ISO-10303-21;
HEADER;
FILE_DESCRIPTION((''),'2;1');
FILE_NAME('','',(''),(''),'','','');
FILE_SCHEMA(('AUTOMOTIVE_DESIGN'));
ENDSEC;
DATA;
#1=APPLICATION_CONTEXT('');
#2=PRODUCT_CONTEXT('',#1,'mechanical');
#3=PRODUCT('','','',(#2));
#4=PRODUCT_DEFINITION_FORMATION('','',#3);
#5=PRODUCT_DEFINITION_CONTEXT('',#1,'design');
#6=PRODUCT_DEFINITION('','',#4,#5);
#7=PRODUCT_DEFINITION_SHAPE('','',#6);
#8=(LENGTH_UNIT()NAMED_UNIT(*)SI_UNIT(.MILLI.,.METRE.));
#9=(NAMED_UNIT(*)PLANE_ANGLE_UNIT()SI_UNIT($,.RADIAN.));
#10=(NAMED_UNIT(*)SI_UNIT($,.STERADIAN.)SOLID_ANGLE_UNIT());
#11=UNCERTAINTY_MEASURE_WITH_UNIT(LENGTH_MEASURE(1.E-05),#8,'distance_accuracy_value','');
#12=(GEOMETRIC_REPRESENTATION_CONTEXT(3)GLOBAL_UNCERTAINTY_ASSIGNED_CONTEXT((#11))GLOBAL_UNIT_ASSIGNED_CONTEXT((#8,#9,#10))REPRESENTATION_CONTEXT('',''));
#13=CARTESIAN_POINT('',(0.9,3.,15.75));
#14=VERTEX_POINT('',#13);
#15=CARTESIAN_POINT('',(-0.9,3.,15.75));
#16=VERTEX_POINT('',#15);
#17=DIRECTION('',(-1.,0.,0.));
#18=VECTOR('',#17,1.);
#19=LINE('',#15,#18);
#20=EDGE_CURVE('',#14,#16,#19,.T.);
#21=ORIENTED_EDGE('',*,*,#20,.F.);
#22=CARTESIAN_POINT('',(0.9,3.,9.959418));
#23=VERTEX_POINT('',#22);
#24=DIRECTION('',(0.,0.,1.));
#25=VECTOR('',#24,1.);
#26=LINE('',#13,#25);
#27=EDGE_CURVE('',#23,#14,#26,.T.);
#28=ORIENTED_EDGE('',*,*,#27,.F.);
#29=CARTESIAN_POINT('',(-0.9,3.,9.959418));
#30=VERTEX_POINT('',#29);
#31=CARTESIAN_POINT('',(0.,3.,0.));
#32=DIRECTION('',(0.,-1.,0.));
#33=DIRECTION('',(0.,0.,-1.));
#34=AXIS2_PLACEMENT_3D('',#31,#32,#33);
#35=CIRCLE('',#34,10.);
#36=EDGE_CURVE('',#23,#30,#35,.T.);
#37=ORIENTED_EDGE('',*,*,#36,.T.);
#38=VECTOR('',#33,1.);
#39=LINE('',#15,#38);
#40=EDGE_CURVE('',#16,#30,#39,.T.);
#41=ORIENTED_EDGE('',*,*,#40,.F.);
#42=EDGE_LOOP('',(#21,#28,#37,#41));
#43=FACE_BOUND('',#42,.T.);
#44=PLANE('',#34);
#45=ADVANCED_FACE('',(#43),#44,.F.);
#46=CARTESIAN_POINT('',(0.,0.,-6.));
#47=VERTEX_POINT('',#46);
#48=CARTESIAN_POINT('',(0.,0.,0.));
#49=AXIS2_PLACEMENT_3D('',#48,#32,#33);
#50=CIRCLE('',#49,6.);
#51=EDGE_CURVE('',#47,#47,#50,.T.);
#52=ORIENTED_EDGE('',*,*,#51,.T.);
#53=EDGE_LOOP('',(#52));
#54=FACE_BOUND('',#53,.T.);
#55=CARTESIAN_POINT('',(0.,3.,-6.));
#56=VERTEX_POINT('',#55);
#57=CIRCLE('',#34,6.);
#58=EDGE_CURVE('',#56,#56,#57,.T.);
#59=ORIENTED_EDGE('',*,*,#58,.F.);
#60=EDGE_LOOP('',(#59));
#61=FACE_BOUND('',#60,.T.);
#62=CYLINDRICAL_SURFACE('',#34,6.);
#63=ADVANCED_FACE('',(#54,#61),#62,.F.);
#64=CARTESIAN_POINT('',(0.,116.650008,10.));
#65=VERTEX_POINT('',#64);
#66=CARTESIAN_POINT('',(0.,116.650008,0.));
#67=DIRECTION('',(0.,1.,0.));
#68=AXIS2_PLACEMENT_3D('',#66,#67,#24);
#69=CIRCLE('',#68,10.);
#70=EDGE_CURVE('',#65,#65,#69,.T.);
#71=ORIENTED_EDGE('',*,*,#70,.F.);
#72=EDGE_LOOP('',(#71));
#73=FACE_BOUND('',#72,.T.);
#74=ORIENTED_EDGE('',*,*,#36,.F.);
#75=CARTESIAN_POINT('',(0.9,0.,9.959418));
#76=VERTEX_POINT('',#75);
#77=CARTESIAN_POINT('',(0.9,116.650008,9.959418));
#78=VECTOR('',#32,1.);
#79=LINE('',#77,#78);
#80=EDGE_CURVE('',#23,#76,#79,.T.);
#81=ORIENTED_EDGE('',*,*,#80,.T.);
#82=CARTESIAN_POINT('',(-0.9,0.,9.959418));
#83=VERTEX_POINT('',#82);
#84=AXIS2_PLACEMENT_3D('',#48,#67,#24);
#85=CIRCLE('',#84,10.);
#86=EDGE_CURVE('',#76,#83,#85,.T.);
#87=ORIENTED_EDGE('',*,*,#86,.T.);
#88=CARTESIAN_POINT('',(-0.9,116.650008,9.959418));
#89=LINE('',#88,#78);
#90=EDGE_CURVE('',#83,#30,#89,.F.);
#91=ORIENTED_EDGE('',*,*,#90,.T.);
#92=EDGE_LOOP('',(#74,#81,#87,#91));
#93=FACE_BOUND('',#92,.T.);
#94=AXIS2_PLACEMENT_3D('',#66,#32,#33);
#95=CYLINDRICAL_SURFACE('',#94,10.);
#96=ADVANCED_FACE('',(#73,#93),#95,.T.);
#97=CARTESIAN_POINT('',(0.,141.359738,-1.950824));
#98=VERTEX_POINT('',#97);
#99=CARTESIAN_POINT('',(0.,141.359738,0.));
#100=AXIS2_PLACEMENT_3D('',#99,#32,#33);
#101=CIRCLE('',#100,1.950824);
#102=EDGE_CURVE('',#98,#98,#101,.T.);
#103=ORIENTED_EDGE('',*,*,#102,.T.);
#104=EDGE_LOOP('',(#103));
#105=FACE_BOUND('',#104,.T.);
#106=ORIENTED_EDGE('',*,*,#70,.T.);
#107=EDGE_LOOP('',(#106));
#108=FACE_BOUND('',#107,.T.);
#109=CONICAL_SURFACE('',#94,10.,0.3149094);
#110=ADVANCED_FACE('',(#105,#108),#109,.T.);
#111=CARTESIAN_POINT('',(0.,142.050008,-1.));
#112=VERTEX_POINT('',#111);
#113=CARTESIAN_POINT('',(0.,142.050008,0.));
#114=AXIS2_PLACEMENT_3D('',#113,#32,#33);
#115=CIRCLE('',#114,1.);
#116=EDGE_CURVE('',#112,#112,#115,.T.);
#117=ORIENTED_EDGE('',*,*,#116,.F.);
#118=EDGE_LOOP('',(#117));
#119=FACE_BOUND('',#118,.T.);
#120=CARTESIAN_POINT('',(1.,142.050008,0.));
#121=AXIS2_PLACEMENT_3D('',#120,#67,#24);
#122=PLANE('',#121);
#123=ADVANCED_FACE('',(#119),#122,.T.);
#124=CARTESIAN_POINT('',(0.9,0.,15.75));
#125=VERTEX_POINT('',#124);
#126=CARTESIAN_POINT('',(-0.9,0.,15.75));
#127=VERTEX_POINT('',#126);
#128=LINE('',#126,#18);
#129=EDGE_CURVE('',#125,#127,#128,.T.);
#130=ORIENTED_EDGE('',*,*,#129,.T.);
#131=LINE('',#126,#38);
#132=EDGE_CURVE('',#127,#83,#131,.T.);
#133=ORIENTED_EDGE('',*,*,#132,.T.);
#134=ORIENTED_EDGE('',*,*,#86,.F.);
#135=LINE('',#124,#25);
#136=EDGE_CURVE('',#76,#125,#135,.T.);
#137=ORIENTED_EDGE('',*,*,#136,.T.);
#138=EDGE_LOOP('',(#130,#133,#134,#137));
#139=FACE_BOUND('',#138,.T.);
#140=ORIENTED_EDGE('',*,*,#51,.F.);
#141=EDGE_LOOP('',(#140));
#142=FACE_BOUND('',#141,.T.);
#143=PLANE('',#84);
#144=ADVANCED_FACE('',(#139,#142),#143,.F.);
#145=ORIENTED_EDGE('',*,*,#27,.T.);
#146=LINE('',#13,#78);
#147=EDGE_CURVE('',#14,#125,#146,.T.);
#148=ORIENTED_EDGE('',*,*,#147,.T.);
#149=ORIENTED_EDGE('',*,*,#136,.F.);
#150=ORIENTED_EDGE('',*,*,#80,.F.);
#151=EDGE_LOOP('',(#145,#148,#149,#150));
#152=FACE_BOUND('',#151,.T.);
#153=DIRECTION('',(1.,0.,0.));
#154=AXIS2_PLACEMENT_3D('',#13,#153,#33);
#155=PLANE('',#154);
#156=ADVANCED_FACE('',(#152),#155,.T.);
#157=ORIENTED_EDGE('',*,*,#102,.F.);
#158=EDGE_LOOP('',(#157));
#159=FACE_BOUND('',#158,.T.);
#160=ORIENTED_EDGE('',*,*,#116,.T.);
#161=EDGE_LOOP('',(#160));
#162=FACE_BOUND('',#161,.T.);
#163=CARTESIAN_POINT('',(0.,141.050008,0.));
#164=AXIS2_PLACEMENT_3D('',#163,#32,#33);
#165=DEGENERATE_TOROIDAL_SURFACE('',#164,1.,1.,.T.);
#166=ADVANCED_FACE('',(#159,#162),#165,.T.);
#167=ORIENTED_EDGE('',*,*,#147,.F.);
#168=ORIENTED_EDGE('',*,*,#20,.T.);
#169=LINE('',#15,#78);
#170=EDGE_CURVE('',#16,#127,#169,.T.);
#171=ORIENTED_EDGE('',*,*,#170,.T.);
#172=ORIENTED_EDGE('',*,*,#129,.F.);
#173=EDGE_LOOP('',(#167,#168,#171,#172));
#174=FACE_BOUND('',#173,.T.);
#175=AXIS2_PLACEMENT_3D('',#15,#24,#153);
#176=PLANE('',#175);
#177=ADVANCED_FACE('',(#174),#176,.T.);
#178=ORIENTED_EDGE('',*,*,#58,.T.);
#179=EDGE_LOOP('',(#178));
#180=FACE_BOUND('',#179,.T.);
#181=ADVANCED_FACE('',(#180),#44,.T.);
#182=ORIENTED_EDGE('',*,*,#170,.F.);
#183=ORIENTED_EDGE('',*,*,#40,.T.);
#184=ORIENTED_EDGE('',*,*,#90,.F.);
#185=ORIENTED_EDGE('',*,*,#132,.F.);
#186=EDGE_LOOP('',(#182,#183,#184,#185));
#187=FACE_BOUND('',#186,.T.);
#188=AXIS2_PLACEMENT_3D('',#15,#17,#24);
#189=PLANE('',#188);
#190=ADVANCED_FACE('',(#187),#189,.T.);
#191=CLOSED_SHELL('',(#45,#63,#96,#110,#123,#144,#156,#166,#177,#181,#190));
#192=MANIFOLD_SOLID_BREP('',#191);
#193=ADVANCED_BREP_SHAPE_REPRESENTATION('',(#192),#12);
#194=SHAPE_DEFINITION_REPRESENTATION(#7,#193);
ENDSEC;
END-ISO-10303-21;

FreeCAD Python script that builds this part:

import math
import FreeCAD as App
import Part
import Sketcher
from FreeCAD import Vector
Q = App.Units.Quantity

doc = App.newDocument("Part")
body = doc.addObject("PartDesign::Body", "Body")

# Sketch on XZ plane
sketch1 = doc.addObject("Sketcher::SketchObject", "Sketch")
body.addObject(sketch1)
sketch1.AttachmentSupport = (doc.XZ_Plane, [""])
sketch1.MapMode = "FlatFace"
sketch1.addGeometry(Part.Circle(Vector(0, 0, 0), Vector(0, 0, 1), 10), False)
sketch1.addConstraint([
    Sketcher.Constraint("Coincident", 0, 3, -1, 1),
    Sketcher.Constraint("Diameter", 0, Q("20 mm")),
])
pad1 = doc.addObject("PartDesign::Pad", "Pad")
body.addObject(pad1)
pad1.Profile = sketch1
pad1.Length = 116.650008
pad1.Reversed = True

# Sketch on XY plane
sketch2 = doc.addObject("Sketcher::SketchObject", "Sketch001")
body.addObject(sketch2)
sketch2.AttachmentSupport = (doc.XY_Plane, [""])
sketch2.MapMode = "FlatFace"
sketch2.addGeometry([
    Part.LineSegment(Vector(0, 142.050008, 0), Vector(0, 116.650008, 0)),  # 0
    Part.LineSegment(Vector(0, 116.650008, 0), Vector(10, 116.650008, 0)),  # 1
    Part.LineSegment(Vector(10, 116.650008, 0), Vector(1.950824, 141.359738, 0)),  # 2
    Part.ArcOfCircle(Part.Circle(Vector(1, 141.050008, 0), Vector(0, 0, 1), 1), math.radians(18.042979), math.radians(90)),  # 3
    Part.LineSegment(Vector(1, 142.050008, 0), Vector(0, 142.050008, 0)),  # 4
], False)
sketch2.addConstraint([
    Sketcher.Constraint("Coincident", 0, 2, 1, 1),
    Sketcher.Constraint("Coincident", 1, 2, 2, 1),
    Sketcher.Constraint("Tangent", 2, 2, 3, 1),
    Sketcher.Constraint("Tangent", 3, 2, 4, 1),
    Sketcher.Constraint("Coincident", 4, 2, 0, 1),
    Sketcher.Constraint("Vertical", 0),
    Sketcher.Constraint("Horizontal", 1),
    Sketcher.Constraint("Horizontal", 4),
    Sketcher.Constraint("PointOnObject", 0, 2, -2),
    Sketcher.Constraint("Radius", 3, Q("1 mm")),
    Sketcher.Constraint("DistanceX", 1, 1, 1, 2, Q("10 mm")),
    Sketcher.Constraint("DistanceX", 4, 2, 4, 1, Q("1 mm")),
    Sketcher.Constraint("DistanceY", 0, 2, 0, 1, Q("25.4 mm")),
    Sketcher.Constraint("DistanceY", -1, 1, 3, 3, Q("141.050008 mm")),
])
revolution = doc.addObject("PartDesign::Revolution", "Revolution")
body.addObject(revolution)
revolution.Profile = sketch2
revolution.ReferenceAxis = (sketch2, ["V_Axis"])
revolution.Angle = 360

# Sketch on XZ plane
sketch3 = doc.addObject("Sketcher::SketchObject", "Sketch002")
body.addObject(sketch3)
sketch3.AttachmentSupport = (doc.XZ_Plane, [""])
sketch3.MapMode = "FlatFace"
sketch3.addGeometry([
    Part.LineSegment(Vector(0.9, 15.75, 0), Vector(-0.9, 15.75, 0)),
    Part.LineSegment(Vector(-0.9, 15.75, 0), Vector(-0.9, 9.354806, 0)),
    Part.ArcOfCircle(Part.Circle(Vector(0, 0, 0), Vector(0, 0, 1), 9.398), math.radians(84.504645), math.radians(95.495355)),
    Part.LineSegment(Vector(0.9, 9.354806, 0), Vector(0.9, 15.75, 0)),
], False)
sketch3.addConstraint([
    Sketcher.Constraint("Coincident", 0, 2, 1, 1),
    Sketcher.Constraint("Coincident", 1, 2, 2, 2),
    Sketcher.Constraint("Coincident", 2, 1, 3, 1),
    Sketcher.Constraint("Coincident", 3, 2, 0, 1),
    Sketcher.Constraint("Horizontal", 0),
    Sketcher.Constraint("Vertical", 1),
    Sketcher.Constraint("Vertical", 3),
    Sketcher.Constraint("Coincident", 2, 3, -1, 1),
    Sketcher.Constraint("Horizontal", 1, 2, 2, 1),
    Sketcher.Constraint("DistanceX", 0, 2, 0, 1, Q("1.8 mm")),
    Sketcher.Constraint("Radius", 2, Q("9.398 mm")),
    Sketcher.Constraint("DistanceY", -1, 1, 0, 2, Q("15.75 mm")),
])
pad2 = doc.addObject("PartDesign::Pad", "Pad001")
body.addObject(pad2)
pad2.Profile = sketch3
pad2.Length = 3
pad2.Reversed = True

# Sketch on XZ plane
sketch4 = doc.addObject("Sketcher::SketchObject", "Sketch003")
body.addObject(sketch4)
sketch4.AttachmentSupport = (doc.XZ_Plane, [""])
sketch4.MapMode = "FlatFace"
sketch4.addGeometry(Part.Circle(Vector(0, 0, 0), Vector(0, 0, 1), 6), False)
sketch4.addConstraint([
    Sketcher.Constraint("Coincident", 0, 3, -1, 1),
    Sketcher.Constraint("Diameter", 0, Q("12 mm")),
])
pocket1 = doc.addObject("PartDesign::Pocket", "Pocket")
body.addObject(pocket1)
pocket1.Profile = sketch4
pocket1.Length = 3

doc.recompute()
